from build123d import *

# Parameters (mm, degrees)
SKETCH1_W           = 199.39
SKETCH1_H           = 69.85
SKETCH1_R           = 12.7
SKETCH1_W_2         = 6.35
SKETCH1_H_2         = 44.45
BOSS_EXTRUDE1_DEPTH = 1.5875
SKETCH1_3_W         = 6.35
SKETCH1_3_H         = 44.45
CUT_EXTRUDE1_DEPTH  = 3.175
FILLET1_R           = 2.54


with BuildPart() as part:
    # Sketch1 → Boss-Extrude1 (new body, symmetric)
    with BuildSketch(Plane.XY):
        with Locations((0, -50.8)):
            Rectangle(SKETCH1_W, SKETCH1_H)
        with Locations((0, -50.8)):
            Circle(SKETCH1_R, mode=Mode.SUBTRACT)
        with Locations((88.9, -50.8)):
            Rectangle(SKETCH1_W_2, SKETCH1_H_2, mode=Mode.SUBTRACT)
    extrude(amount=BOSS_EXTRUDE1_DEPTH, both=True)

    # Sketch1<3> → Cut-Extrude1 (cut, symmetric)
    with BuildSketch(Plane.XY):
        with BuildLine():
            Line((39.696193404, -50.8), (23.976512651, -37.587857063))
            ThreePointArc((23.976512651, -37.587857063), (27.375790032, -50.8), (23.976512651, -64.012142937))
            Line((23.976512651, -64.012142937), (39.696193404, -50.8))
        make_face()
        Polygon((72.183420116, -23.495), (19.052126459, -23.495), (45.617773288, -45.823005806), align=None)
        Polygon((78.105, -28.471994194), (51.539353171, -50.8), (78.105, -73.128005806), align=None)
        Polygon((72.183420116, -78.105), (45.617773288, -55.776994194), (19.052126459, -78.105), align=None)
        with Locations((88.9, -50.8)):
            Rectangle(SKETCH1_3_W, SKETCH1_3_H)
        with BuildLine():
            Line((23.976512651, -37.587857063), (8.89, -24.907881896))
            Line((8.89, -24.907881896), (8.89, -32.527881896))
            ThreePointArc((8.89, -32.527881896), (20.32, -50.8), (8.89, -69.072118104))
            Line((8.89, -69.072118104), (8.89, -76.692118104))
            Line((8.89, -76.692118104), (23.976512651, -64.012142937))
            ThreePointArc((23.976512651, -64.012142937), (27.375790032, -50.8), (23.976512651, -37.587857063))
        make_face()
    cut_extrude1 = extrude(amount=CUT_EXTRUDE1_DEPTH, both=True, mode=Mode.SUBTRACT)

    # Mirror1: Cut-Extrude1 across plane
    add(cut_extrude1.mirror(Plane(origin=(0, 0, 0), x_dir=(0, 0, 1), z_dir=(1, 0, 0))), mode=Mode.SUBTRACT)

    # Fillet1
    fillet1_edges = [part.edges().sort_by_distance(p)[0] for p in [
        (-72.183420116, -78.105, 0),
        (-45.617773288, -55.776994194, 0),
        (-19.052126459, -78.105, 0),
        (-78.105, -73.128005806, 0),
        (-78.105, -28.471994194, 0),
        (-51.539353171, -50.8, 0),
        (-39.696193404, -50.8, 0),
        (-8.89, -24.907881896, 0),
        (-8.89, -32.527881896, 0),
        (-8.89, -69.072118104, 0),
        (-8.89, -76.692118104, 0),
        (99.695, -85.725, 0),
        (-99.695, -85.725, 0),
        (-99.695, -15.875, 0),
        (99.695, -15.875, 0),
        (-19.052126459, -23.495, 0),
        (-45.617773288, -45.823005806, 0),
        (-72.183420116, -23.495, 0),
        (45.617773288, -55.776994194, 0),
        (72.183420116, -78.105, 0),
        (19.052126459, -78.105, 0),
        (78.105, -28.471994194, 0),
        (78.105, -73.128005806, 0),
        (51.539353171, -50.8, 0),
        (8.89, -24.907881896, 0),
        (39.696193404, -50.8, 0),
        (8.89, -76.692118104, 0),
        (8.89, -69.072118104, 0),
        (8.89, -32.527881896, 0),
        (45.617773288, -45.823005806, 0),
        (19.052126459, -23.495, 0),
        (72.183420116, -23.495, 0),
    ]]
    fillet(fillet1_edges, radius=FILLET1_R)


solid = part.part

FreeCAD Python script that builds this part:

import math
import FreeCAD as App
import Part
import Sketcher
Q = App.Units.Quantity


def edges_at(feature, points):
    """Names of the edges that pass closest to the given points."""
    edges = feature.Shape.Edges
    near = lambda p: min(range(len(edges)), key=lambda i: edges[i].distToShape(Part.Vertex(*p))[0])
    return sorted({f"Edge{near(p) + 1}" for p in points})


def add_polygon(sketch, points):
    """Adds a closed chain of lines whose ends are joined by coincident constraints."""
    first, n = sketch.GeometryCount, len(points)
    for a, b in zip(points, points[1:] + points[:1]):
        sketch.addGeometry(Part.LineSegment(App.Vector(*a, 0), App.Vector(*b, 0)), False)
    for i in range(n):
        sketch.addConstraint(Sketcher.Constraint("Coincident", first + i, 2, first + (i + 1) % n, 1))

doc = App.newDocument("Part")
body = doc.addObject("PartDesign::Body", "Body")

sketch1 = body.newObject("Sketcher::SketchObject", "Sketch")
sketch1.AttachmentSupport = (doc.getObject("XY_Plane"), [""])
sketch1.MapMode = "FlatFace"
add_polygon(sketch1, [(-100, -16), (-100, -86), (100, -86), (100, -16)])
sketch1.addGeometry(Part.Circle(App.Vector(0, -51, 0), App.Vector(0, 0, 1), 13), False)
add_polygon(sketch1, [(92, -73), (86, -73), (86, -29), (92, -29)])
sketch1.addConstraint([
    Sketcher.Constraint("Vertical", 0),
    Sketcher.Constraint("Horizontal", 1),
    Sketcher.Constraint("Vertical", 2),
    Sketcher.Constraint("Horizontal", 3),
    Sketcher.Constraint("Horizontal", 5),
    Sketcher.Constraint("Vertical", 6),
    Sketcher.Constraint("Horizontal", 7),
    Sketcher.Constraint("Vertical", 8),
    Sketcher.Constraint("PointOnObject", 4, 3, -2),
    Sketcher.Constraint("Diameter", 4, Q("1 in")),
    Sketcher.Constraint("DistanceY", 4, 3, -1, 1, Q("2 in")),
    Sketcher.Constraint("DistanceX", 1, 1, 1, 2, Q("7.85 in")),
    Sketcher.Constraint("DistanceX", 5, 2, 5, 1, Q("0.25 in")),
    Sketcher.Constraint("DistanceY", 0, 2, 0, 1, Q("2.75 in")),
    Sketcher.Constraint("DistanceY", 6, 1, 6, 2, Q("1.75 in")),
    Sketcher.Constraint("DistanceY", 1, 2, 5, 2, Q("0.5 in")),
    Sketcher.Constraint("DistanceX", 0, 2, 5, 2, Q("7.3 in")),
    Sketcher.Constraint("DistanceX", 0, 2, -1, 1, Q("3.925 in")),
    Sketcher.Constraint("DistanceY", 0, 2, -1, 1, Q("3.375 in")),
])
pad1 = body.newObject("PartDesign::Pad", "Pad")
pad1.Profile = sketch1
pad1.Length = Q("0.125 in")
pad1.Midplane = True

sketch2 = body.newObject("Sketcher::SketchObject", "Sketch001")
sketch2.AttachmentSupport = (doc.getObject("XY_Plane"), [""])
sketch2.MapMode = "FlatFace"
sketch2.addGeometry(Part.LineSegment(App.Vector(40, -51, 0), App.Vector(24, -38, 0)), False)
sketch2.addGeometry(Part.LineSegment(App.Vector(24, -38, 0), App.Vector(9, -25, 0)), False)
sketch2.addGeometry(Part.LineSegment(App.Vector(9, -25, 0), App.Vector(9, -33, 0)), False)
sketch2.addGeometry(Part.ArcOfCircle(Part.Circle(App.Vector(0, -51, 0), App.Vector(0, 0, 1), 20), math.radians(-64), math.radians(64)), False)
sketch2.addGeometry(Part.LineSegment(App.Vector(9, -69, 0), App.Vector(9, -77, 0)), False)
sketch2.addGeometry(Part.LineSegment(App.Vector(9, -77, 0), App.Vector(24, -64, 0)), False)
sketch2.addGeometry(Part.LineSegment(App.Vector(24, -64, 0), App.Vector(40, -51, 0)), False)
add_polygon(sketch2, [(72, -23), (19, -23), (46, -46)])
add_polygon(sketch2, [(78, -28), (52, -51), (78, -73)])
add_polygon(sketch2, [(72, -78), (46, -56), (19, -78)])
add_polygon(sketch2, [(86, -29), (86, -73), (92, -73), (92, -29)])
sketch2.addConstraint([
    Sketcher.Constraint("Coincident", 0, 2, 1, 1),
    Sketcher.Constraint("Coincident", 1, 2, 2, 1),
    Sketcher.Constraint("Coincident", 2, 2, 3, 2),
    Sketcher.Constraint("Coincident", 3, 1, 4, 1),
    Sketcher.Constraint("Coincident", 4, 2, 5, 1),
    Sketcher.Constraint("Coincident", 5, 2, 6, 1),
    Sketcher.Constraint("Coincident", 6, 2, 0, 1),
    Sketcher.Constraint("Vertical", 2),
    Sketcher.Constraint("Vertical", 4),
    Sketcher.Constraint("Horizontal", 7),
    Sketcher.Constraint("Vertical", 12),
    Sketcher.Constraint("Horizontal", 15),
    Sketcher.Constraint("Vertical", 16),
    Sketcher.Constraint("Horizontal", 17),
    Sketcher.Constraint("Vertical", 18),
    Sketcher.Constraint("Horizontal", 19),
    Sketcher.Constraint("PointOnObject", 3, 3, -2),
    Sketcher.Constraint("Parallel", 0, 1),
    Sketcher.Constraint("Parallel", 5, 6),
    Sketcher.Constraint("Parallel", 1, 8),
    Sketcher.Constraint("Parallel", 6, 9),
    Sketcher.Constraint("Parallel", 9, 10),
    Sketcher.Constraint("Parallel", 8, 11),
    Sketcher.Constraint("Parallel", 11, 13),
    Sketcher.Constraint("Parallel", 10, 14),
    Sketcher.Constraint("Horizontal", 3, 3, 6, 2),
    Sketcher.Constraint("Horizontal", 6, 2, 10, 2),
    Sketcher.Constraint("Vertical", 2, 2, 3, 1),
    Sketcher.Constraint("Vertical", 0, 2, 5, 2),
    Sketcher.Constraint("Vertical", 8, 2, 13, 2),
    Sketcher.Constraint("Vertical", 7, 2, 14, 2),
    Sketcher.Constraint("Vertical", 9, 2, 15, 2),
    Sketcher.Constraint("Equal", 9, 10),
    Sketcher.Constraint("Radius", 3, Q("0.8 in")),
    Sketcher.Constraint("DistanceY", 2, 2, 2, 1, Q("0.3 in")),
    Sketcher.Constraint("DistanceY", 3, 3, -1, 1, Q("2 in")),
    Sketcher.Constraint("DistanceX", 17, 1, 17, 2, Q("0.25 in")),
    Sketcher.Constraint("DistanceY", 16, 2, 16, 1, Q("1.75 in")),
    Sketcher.Constraint("DistanceX", 11, 2, 16, 2, Q("0.3 in")),
    Sketcher.Constraint("DistanceY", 15, 2, 16, 2, Q("0.2 in")),
    Sketcher.Constraint("DistanceY", 18, 2, 9, 2, Q("0.2 in")),
    Sketcher.Constraint("DistanceX", -1, 1, 1, 2, Q("0.35 in")),
    Sketcher.Constraint("DistanceY", 7, 2, -1, 1, Q("0.925 in")),
    Sketcher.Constraint("DistanceX", -1, 1, 11, 2, Q("3.075 in")),
    Sketcher.Constraint("DistanceY", 12, 1, 12, 2, 44.656012),
    Sketcher.Constraint("DistanceX", 7, 2, 7, 1, 53.131294),
    Sketcher.Constraint("DistanceX", -1, 1, 9, 2, 72.18342),
    Sketcher.Constraint("DistanceY", 3, 1, 0, 2, 31.484261),
])
pocket1 = body.newObject("PartDesign::Pocket", "Pocket")
pocket1.Profile = sketch2
pocket1.Length = Q("0.25 in")
pocket1.Midplane = True
doc.recompute()

mirrored = body.newObject("PartDesign::Mirrored", "Mirrored")
mirrored.Originals = [pocket1]
mirrored.MirrorPlane = (doc.getObject("YZ_Plane"), [""])
body.Tip = mirrored
doc.recompute()

fillet = body.newObject("PartDesign::Fillet", "Fillet")
fillet.Base = (mirrored, edges_at(mirrored, [
    (-72.183, -78.105, 0),
    (-45.618, -55.777, 0),
    (-19.052, -78.105, 0),
    (-78.105, -73.128, 0),
    (-78.105, -28.472, 0),
    (-51.539, -50.8, 0),
    (-39.696, -50.8, 0),
    (-8.89, -24.908, 0),
    (-8.89, -32.528, 0),
    (-8.89, -69.072, 0),
    (-8.89, -76.692, 0),
    (99.695, -85.725, 0),
    (-99.695, -85.725, 0),
    (-99.695, -15.875, 0),
    (99.695, -15.875, 0),
    (-19.052, -23.495, 0),
    (-45.618, -45.823, 0),
    (-72.183, -23.495, 0),
    (45.618, -55.777, 0),
    (72.183, -78.105, 0),
    (19.052, -78.105, 0),
    (78.105, -28.472, 0),
    (78.105, -73.128, 0),
    (51.539, -50.8, 0),
    (8.89, -24.908, 0),
    (39.696, -50.8, 0),
    (8.89, -76.692, 0),
    (8.89, -69.072, 0),
    (8.89, -32.528, 0),
    (45.618, -45.823, 0),
    (19.052, -23.495, 0),
    (72.183, -23.495, 0),
]))
fillet.Radius = Q("0.1 in")

doc.recompute()
